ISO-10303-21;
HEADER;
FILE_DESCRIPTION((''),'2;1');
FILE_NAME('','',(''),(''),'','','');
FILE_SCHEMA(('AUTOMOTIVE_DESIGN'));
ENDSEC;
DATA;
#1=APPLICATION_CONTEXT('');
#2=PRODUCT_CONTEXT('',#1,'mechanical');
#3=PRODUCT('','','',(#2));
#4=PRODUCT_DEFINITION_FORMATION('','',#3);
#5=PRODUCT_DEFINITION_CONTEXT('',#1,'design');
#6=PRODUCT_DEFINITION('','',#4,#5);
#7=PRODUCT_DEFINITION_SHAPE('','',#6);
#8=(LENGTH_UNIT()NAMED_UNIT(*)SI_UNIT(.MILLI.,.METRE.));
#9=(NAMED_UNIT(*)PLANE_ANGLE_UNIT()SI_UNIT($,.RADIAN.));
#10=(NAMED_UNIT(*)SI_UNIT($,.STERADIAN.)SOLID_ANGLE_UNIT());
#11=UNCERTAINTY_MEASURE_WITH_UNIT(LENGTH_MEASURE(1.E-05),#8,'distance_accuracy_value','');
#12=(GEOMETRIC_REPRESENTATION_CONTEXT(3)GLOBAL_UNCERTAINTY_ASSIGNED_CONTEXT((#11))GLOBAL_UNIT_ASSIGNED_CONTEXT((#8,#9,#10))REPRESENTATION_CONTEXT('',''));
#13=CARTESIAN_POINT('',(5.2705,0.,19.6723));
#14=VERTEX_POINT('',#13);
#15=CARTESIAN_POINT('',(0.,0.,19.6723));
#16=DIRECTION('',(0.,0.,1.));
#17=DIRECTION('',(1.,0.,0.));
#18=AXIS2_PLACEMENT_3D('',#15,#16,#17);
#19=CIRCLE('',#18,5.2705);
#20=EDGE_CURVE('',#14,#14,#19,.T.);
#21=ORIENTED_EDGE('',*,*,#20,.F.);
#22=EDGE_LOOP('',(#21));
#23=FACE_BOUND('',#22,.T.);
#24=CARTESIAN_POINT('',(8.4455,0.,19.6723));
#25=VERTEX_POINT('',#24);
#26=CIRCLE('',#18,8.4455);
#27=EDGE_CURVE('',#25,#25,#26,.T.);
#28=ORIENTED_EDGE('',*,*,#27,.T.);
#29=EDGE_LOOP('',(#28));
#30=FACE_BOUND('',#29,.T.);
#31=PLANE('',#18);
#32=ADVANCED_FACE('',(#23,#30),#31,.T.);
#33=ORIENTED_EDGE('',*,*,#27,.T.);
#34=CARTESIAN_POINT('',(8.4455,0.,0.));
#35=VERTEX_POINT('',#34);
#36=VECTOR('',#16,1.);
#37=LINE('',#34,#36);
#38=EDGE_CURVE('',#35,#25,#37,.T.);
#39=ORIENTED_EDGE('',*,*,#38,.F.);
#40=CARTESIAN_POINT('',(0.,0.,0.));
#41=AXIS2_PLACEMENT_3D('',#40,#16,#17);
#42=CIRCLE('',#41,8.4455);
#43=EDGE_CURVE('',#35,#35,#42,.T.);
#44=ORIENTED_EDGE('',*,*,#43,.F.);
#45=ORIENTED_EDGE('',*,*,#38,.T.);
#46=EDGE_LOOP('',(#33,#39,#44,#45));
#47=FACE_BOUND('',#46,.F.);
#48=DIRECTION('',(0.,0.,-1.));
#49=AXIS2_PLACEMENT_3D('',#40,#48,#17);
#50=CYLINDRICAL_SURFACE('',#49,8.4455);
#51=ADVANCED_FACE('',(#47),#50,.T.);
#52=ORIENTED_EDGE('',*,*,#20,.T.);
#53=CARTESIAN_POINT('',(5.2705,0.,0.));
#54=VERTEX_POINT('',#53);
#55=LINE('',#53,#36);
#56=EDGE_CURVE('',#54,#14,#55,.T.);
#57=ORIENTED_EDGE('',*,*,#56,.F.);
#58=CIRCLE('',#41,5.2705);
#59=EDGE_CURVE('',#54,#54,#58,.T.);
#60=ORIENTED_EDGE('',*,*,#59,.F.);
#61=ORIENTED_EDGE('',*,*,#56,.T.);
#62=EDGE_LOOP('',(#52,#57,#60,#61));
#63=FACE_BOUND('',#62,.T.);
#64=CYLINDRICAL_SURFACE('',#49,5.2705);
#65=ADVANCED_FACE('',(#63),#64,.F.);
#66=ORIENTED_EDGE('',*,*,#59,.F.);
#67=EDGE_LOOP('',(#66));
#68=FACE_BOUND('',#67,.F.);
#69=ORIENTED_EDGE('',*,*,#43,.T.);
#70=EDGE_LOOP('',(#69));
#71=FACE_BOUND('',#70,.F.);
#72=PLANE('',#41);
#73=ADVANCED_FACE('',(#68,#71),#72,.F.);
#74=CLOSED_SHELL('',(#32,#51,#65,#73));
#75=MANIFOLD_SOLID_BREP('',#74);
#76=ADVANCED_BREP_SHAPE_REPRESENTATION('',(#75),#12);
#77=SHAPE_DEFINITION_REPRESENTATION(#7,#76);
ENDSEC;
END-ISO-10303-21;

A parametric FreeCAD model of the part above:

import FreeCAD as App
import Part
import Sketcher

V = App.Vector
Q = App.Units.Quantity

doc = App.newDocument("Part")
params = doc.addObject("Spreadsheet::Sheet", "Params")
for row, (alias, value) in enumerate([
    ("sketch1_diameter", "0.415 in"),
    ("sketch1_diameter2", "0.665 in"),
    ("pad1_length", "0.7745 in"),
], start=1):
    params.set(f"A{row}", alias)
    params.set(f"B{row}", "=" + value)
    params.setAlias(f"B{row}", alias)

body = doc.addObject("PartDesign::Body", "Body")

# Sketch on XY plane
sketch1 = doc.addObject("Sketcher::SketchObject", "Sketch")
body.addObject(sketch1)
sketch1.AttachmentSupport = (doc.XY_Plane, [""])
sketch1.MapMode = "FlatFace"
sketch1.addGeometry([
    Part.Circle(V(0, 0, 0), V(0, 0, 1), 8.4455),
    Part.Circle(V(0, 0, 0), V(0, 0, 1), 5.2705),
], False)
sketch1.addConstraint([
    Sketcher.Constraint("Coincident", 0, 3, -1, 1),
    Sketcher.Constraint("Coincident", 1, 3, -1, 1),
    Sketcher.Constraint("Diameter", 1, Q("0.415 in")),
    Sketcher.Constraint("Diameter", 0, Q("0.665 in")),
])
sketch1.setExpression("Constraints[2]", "Params.sketch1_diameter")
sketch1.setExpression("Constraints[3]", "Params.sketch1_diameter2")
pad1 = doc.addObject("PartDesign::Pad", "Pad")
body.addObject(pad1)
pad1.Profile = sketch1
pad1.setExpression("Length", "Params.pad1_length")

doc.recompute()
